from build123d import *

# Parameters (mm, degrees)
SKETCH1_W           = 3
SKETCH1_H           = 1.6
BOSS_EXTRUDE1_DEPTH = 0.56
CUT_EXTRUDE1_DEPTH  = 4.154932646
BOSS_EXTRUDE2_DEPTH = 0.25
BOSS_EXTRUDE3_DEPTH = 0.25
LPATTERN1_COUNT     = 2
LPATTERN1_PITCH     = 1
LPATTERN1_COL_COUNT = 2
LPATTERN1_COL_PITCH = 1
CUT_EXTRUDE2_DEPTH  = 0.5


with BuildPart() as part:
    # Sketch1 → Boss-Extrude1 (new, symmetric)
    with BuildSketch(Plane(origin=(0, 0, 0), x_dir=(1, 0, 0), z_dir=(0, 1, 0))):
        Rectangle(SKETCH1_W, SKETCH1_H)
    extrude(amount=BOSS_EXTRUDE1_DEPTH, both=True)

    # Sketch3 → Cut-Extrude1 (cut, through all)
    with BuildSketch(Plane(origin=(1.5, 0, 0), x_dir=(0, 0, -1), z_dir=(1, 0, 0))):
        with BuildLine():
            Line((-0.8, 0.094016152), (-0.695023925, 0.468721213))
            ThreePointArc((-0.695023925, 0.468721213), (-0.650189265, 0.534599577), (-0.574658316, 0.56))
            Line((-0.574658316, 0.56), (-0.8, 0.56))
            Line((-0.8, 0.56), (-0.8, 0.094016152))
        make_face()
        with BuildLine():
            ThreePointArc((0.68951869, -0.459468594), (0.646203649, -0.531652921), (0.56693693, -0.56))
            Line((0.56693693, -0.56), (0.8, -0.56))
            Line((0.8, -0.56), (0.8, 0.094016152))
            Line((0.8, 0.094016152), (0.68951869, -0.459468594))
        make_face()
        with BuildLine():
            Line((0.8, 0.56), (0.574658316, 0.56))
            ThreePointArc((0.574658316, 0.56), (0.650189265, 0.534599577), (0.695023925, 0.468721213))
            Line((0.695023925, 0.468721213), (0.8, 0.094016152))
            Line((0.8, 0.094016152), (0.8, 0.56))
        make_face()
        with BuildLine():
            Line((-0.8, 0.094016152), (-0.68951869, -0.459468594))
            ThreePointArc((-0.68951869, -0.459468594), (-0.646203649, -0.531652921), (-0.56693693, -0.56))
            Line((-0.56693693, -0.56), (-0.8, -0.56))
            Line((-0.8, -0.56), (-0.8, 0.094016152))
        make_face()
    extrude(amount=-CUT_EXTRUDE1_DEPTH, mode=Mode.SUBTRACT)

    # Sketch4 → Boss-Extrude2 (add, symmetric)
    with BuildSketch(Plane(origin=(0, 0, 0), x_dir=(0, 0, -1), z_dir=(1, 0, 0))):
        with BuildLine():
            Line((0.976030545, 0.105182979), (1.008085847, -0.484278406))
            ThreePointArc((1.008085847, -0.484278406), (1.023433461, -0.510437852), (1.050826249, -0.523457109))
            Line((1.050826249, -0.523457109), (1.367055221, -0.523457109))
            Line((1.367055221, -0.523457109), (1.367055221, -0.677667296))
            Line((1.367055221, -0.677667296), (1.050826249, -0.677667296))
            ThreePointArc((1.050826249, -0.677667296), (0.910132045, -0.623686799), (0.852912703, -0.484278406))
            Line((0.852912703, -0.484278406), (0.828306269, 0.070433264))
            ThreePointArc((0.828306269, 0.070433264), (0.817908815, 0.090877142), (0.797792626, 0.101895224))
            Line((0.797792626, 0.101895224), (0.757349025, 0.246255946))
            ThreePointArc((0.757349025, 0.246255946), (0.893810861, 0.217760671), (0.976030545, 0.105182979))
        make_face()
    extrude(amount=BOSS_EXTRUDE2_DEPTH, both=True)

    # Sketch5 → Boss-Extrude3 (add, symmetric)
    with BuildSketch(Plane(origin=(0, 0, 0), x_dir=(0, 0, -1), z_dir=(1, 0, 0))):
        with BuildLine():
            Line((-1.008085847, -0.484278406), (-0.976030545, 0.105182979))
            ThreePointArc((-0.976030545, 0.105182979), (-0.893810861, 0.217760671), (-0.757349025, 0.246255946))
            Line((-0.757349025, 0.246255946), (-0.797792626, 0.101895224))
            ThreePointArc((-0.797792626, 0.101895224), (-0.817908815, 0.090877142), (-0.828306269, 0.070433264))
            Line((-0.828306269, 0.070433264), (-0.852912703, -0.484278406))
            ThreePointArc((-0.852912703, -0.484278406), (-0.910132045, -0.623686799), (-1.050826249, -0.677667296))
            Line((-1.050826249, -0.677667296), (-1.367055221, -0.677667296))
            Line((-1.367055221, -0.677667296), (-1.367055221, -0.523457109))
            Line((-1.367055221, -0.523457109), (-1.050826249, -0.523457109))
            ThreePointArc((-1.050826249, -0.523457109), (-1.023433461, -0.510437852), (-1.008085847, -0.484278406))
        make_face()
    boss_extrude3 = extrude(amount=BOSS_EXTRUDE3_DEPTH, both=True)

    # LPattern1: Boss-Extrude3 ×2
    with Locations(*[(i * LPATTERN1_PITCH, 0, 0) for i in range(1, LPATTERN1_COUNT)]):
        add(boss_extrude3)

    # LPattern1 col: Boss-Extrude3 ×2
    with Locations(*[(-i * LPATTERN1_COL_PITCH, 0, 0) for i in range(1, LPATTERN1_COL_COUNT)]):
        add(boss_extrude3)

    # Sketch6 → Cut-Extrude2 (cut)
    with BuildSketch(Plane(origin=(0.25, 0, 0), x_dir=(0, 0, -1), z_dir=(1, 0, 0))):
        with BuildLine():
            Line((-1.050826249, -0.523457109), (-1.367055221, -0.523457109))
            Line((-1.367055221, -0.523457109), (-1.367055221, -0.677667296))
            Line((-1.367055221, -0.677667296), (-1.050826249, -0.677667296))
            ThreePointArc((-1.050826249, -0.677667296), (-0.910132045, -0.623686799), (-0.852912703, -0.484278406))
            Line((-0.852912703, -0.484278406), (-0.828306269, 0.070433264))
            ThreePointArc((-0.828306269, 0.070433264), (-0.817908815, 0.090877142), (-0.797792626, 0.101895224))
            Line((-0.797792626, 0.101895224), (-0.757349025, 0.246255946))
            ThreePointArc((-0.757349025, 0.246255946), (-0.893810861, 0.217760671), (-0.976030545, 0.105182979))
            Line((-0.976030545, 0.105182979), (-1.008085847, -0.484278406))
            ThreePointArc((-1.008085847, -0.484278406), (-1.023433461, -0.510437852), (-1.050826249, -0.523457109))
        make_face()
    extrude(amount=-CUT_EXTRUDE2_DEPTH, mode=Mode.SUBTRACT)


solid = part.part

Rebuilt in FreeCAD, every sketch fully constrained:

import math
import FreeCAD as App
import Part
import Sketcher

V = App.Vector
Q = App.Units.Quantity

doc = App.newDocument("Part")
body = doc.addObject("PartDesign::Body", "Body")

# Sketch on XZ plane
sketch1 = body.newObject("Sketcher::SketchObject", "Sketch")
sketch1.AttachmentSupport = (doc.getObject("XZ_Plane"), [""])
sketch1.MapMode = "FlatFace"
sketch1.addGeometry([
    Part.LineSegment(V(-1.5, -0.8, 0), V(-1.5, 0.8, 0)),
    Part.LineSegment(V(-1.5, 0.8, 0), V(1.5, 0.8, 0)),
    Part.LineSegment(V(1.5, 0.8, 0), V(1.5, -0.8, 0)),
    Part.LineSegment(V(1.5, -0.8, 0), V(-1.5, -0.8, 0)),
], False)
sketch1.addConstraint([
    Sketcher.Constraint("Coincident", 0, 2, 1, 1),
    Sketcher.Constraint("Coincident", 1, 2, 2, 1),
    Sketcher.Constraint("Coincident", 2, 2, 3, 1),
    Sketcher.Constraint("Coincident", 3, 2, 0, 1),
    Sketcher.Constraint("Vertical", 0),
    Sketcher.Constraint("Horizontal", 1),
    Sketcher.Constraint("Vertical", 2),
    Sketcher.Constraint("Horizontal", 3),
    Sketcher.Constraint("Symmetric", 0, 2, 2, 2, -1, 1),
    Sketcher.Constraint("DistanceX", 1, 1, 1, 2, Q("3 mm")),
    Sketcher.Constraint("DistanceY", 0, 1, 0, 2, Q("1.6 mm")),
])
pad1 = body.newObject("PartDesign::Pad", "Pad")
pad1.Profile = sketch1
pad1.Length = 1.12
pad1.Midplane = True

# Sketch on YZ plane
sketch2 = body.newObject("Sketcher::SketchObject", "Sketch001")
sketch2.AttachmentSupport = (doc.getObject("YZ_Plane"), [""])
sketch2.MapMode = "FlatFace"
sketch2.AttachmentOffset = App.Placement(V(0, 0, 1.5), App.Rotation())
sketch2.addGeometry([
    Part.LineSegment(V(0.09, 0.8, 0), V(0.47, 0.7, 0)),  # 0
    Part.ArcOfCircle(Part.Circle(V(0.43, 0.57, 0), V(0, 0, 1), 0.12), math.radians(0), math.radians(74)),  # 1
    Part.LineSegment(V(0.56, 0.57, 0), V(0.56, 0.8, 0)),  # 2
    Part.LineSegment(V(0.56, 0.8, 0), V(0.09, 0.8, 0)),  # 3
    Part.ArcOfCircle(Part.Circle(V(-0.43, -0.57, 0), V(0, 0, 1), 0.13), math.radians(-180), math.radians(-101)),  # 4
    Part.LineSegment(V(-0.56, -0.57, 0), V(-0.56, -0.8, 0)),  # 5
    Part.LineSegment(V(-0.56, -0.8, 0), V(0.09, -0.8, 0)),  # 6
    Part.LineSegment(V(0.09, -0.8, 0), V(-0.46, -0.69, 0)),  # 7
    Part.LineSegment(V(0.56, -0.8, 0), V(0.56, -0.57, 0)),  # 8
    Part.ArcOfCircle(Part.Circle(V(0.43, -0.57, 0), V(0, 0, 1), 0.12), math.radians(-74), math.radians(0)),  # 9
    Part.LineSegment(V(0.47, -0.7, 0), V(0.09, -0.8, 0)),  # 10
    Part.LineSegment(V(0.09, -0.8, 0), V(0.56, -0.8, 0)),  # 11
    Part.LineSegment(V(-0.46, 0.69, 0), V(0.09, 0.8, 0)),  # 12
    Part.LineSegment(V(0.09, 0.8, 0), V(-0.56, 0.8, 0)),  # 13
    Part.LineSegment(V(-0.56, 0.8, 0), V(-0.56, 0.57, 0)),  # 14
    Part.ArcOfCircle(Part.Circle(V(-0.43, 0.57, 0), V(0, 0, 1), 0.13), math.radians(101), math.radians(180)),  # 15
], False)
sketch2.addConstraint([
    Sketcher.Constraint("Tangent", 0, 2, 1, 2),
    Sketcher.Constraint("Tangent", 1, 1, 2, 1),
    Sketcher.Constraint("Coincident", 2, 2, 3, 1),
    Sketcher.Constraint("Coincident", 3, 2, 0, 1),
    Sketcher.Constraint("Tangent", 4, 1, 5, 1),
    Sketcher.Constraint("Coincident", 5, 2, 6, 1),
    Sketcher.Constraint("Coincident", 6, 2, 7, 1),
    Sketcher.Constraint("Tangent", 7, 2, 4, 2),
    Sketcher.Constraint("Tangent", 8, 2, 9, 2),
    Sketcher.Constraint("Tangent", 9, 1, 10, 1),
    Sketcher.Constraint("Coincident", 10, 2, 11, 1),
    Sketcher.Constraint("Coincident", 11, 2, 8, 1),
    Sketcher.Constraint("Coincident", 12, 2, 13, 1),
    Sketcher.Constraint("Coincident", 13, 2, 14, 1),
    Sketcher.Constraint("Tangent", 14, 2, 15, 2),
    Sketcher.Constraint("Tangent", 15, 1, 12, 1),
    Sketcher.Constraint("Vertical", 2),
    Sketcher.Constraint("Horizontal", 3),
    Sketcher.Constraint("Vertical", 5),
    Sketcher.Constraint("Horizontal", 6),
    Sketcher.Constraint("Vertical", 8),
    Sketcher.Constraint("Horizontal", 11),
    Sketcher.Constraint("Horizontal", 13),
    Sketcher.Constraint("Vertical", 14),
    Sketcher.Constraint("Coincident", 10, 2, 6, 2),
    Sketcher.Constraint("Coincident", 12, 2, 3, 2),
    Sketcher.Constraint("Equal", 1, 4),
    Sketcher.Constraint("Equal", 4, 9),
    Sketcher.Constraint("Equal", 9, 15),
    Sketcher.Constraint("Symmetric", 2, 2, 5, 2, -1, 1),
    Sketcher.Constraint("Symmetric", 1, 3, 9, 3, -1),
    Sketcher.Constraint("Symmetric", 4, 3, 15, 3, -1),
    Sketcher.Constraint("Vertical", 3, 2, 6, 2),
    Sketcher.Constraint("Radius", 1, Q("0.125 mm")),
    Sketcher.Constraint("DistanceY", -1, 1, 2, 2, Q("0.8 mm")),
    Sketcher.Constraint("DistanceX", -1, 1, 1, 1, Q("0.56 mm")),
    Sketcher.Constraint("DistanceY", 2, 1, 2, 2, Q("0.225342 mm")),
    Sketcher.Constraint("DistanceX", 3, 2, 3, 1, Q("0.465984 mm")),
    Sketcher.Constraint("DistanceY", 5, 2, 5, 1, Q("0.233063 mm")),
])
pocket1 = body.newObject("PartDesign::Pocket", "Pocket")
pocket1.Profile = sketch2
pocket1.Type = "ThroughAll"

# Sketch on YZ plane
sketch3 = body.newObject("Sketcher::SketchObject", "Sketch002")
sketch3.AttachmentSupport = (doc.getObject("YZ_Plane"), [""])
sketch3.MapMode = "FlatFace"
sketch3.addGeometry([
    Part.LineSegment(V(-0.484, -1.008, 0), V(0.105, -0.976, 0)),  # 0
    Part.ArcOfCircle(Part.Circle(V(0.055, -0.789, 0), V(0, 0, 1), 0.194), math.radians(-75), math.radians(9)),  # 1
    Part.LineSegment(V(0.246, -0.757, 0), V(0.102, -0.798, 0)),  # 2
    Part.ArcOfCircle(Part.Circle(V(0.064, -0.79, 0), V(0, 0, 1), 0.039), math.radians(-80), math.radians(-12)),  # 3
    Part.LineSegment(V(0.07, -0.828, 0), V(-0.484, -0.853, 0)),  # 4
    Part.ArcOfCircle(Part.Circle(V(-0.488, -1.043, 0), V(0, 0, 1), 0.19), math.radians(89), math.radians(182)),  # 5
    Part.LineSegment(V(-0.678, -1.051, 0), V(-0.678, -1.367, 0)),  # 6
    Part.LineSegment(V(-0.678, -1.367, 0), V(-0.523, -1.367, 0)),  # 7
    Part.LineSegment(V(-0.523, -1.367, 0), V(-0.523, -1.051, 0)),  # 8
    Part.ArcOfCircle(Part.Circle(V(-0.472, -1.058, 0), V(0, 0, 1), 0.052), math.radians(103), math.radians(172)),  # 9
], False)
sketch3.addConstraint([
    Sketcher.Constraint("Coincident", 0, 2, 1, 1),
    Sketcher.Constraint("Coincident", 1, 2, 2, 1),
    Sketcher.Constraint("Coincident", 2, 2, 3, 2),
    Sketcher.Constraint("Coincident", 3, 1, 4, 1),
    Sketcher.Constraint("Coincident", 4, 2, 5, 1),
    Sketcher.Constraint("Coincident", 5, 2, 6, 1),
    Sketcher.Constraint("Coincident", 6, 2, 7, 1),
    Sketcher.Constraint("Coincident", 7, 2, 8, 1),
    Sketcher.Constraint("Coincident", 8, 2, 9, 2),
    Sketcher.Constraint("Coincident", 9, 1, 0, 1),
    Sketcher.Constraint("Vertical", 6),
    Sketcher.Constraint("Horizontal", 7),
    Sketcher.Constraint("Vertical", 8),
    Sketcher.Constraint("Horizontal", 5, 2, 8, 2),
    Sketcher.Constraint("Vertical", 4, 2, 9, 1),
    Sketcher.Constraint("Radius", 1, Q("0.194221 mm")),
    Sketcher.Constraint("Radius", 3, Q("0.038856 mm")),
    Sketcher.Constraint("Radius", 5, Q("0.190126 mm")),
    Sketcher.Constraint("Radius", 9, Q("0.051604 mm")),
    Sketcher.Constraint("DistanceX", 7, 1, 7, 2, Q("0.15421 mm")),
    Sketcher.Constraint("DistanceY", 6, 2, 6, 1, Q("0.316229 mm")),
    Sketcher.Constraint("DistanceX", 5, 3, -1, 1, Q("0.487702 mm")),
    Sketcher.Constraint("DistanceY", 5, 2, 1, 3, Q("0.262302 mm")),
    Sketcher.Constraint("DistanceX", 5, 2, 3, 1, Q("0.748101 mm")),
    Sketcher.Constraint("Distance", 2, Q("0.149919 mm")),
    Sketcher.Constraint("DistanceY", 5, 3, -1, 1, Q("1.043008 mm")),
    Sketcher.Constraint("DistanceY", 0, 2, -1, 1, Q("0.976031 mm")),
    Sketcher.Constraint("DistanceY", 1, 2, -1, 1, Q("0.757349 mm")),
    Sketcher.Constraint("DistanceX", 4, 2, -1, 1, Q("0.484278 mm")),
    Sketcher.Constraint("DistanceY", 3, 3, 1, 3, Q("0.001492 mm")),
    Sketcher.Constraint("DistanceY", 5, 3, 3, 3, Q("0.252992 mm")),
    Sketcher.Constraint("DistanceX", 9, 3, 1, 3, Q("0.526951 mm")),
    Sketcher.Constraint("DistanceY", 9, 3, 1, 3, Q("0.269779 mm")),
    Sketcher.Constraint("DistanceX", 3, 3, 1, 2, Q("0.18243 mm")),
])
pad2 = body.newObject("PartDesign::Pad", "Pad001")
pad2.Profile = sketch3
pad2.Length = 0.5
pad2.Midplane = True

# Sketch on YZ plane
sketch4 = body.newObject("Sketcher::SketchObject", "Sketch003")
sketch4.AttachmentSupport = (doc.getObject("YZ_Plane"), [""])
sketch4.MapMode = "FlatFace"
sketch4.addGeometry([
    Part.LineSegment(V(0.105, 0.976, 0), V(-0.484, 1.008, 0)),  # 0
    Part.ArcOfCircle(Part.Circle(V(-0.472, 1.058, 0), V(0, 0, 1), 0.052), math.radians(-172), math.radians(-103)),  # 1
    Part.LineSegment(V(-0.523, 1.051, 0), V(-0.523, 1.367, 0)),  # 2
    Part.LineSegment(V(-0.523, 1.367, 0), V(-0.678, 1.367, 0)),  # 3
    Part.LineSegment(V(-0.678, 1.367, 0), V(-0.678, 1.051, 0)),  # 4
    Part.ArcOfCircle(Part.Circle(V(-0.488, 1.043, 0), V(0, 0, 1), 0.19), math.radians(178), math.radians(271)),  # 5
    Part.LineSegment(V(-0.484, 0.853, 0), V(0.07, 0.828, 0)),  # 6
    Part.ArcOfCircle(Part.Circle(V(0.064, 0.79, 0), V(0, 0, 1), 0.039), math.radians(12), math.radians(80)),  # 7
    Part.LineSegment(V(0.102, 0.798, 0), V(0.246, 0.757, 0)),  # 8
    Part.ArcOfCircle(Part.Circle(V(0.055, 0.789, 0), V(0, 0, 1), 0.194), math.radians(-9), math.radians(75)),  # 9
], False)
sketch4.addConstraint([
    Sketcher.Constraint("Coincident", 0, 2, 1, 2),
    Sketcher.Constraint("Coincident", 1, 1, 2, 1),
    Sketcher.Constraint("Coincident", 2, 2, 3, 1),
    Sketcher.Constraint("Coincident", 3, 2, 4, 1),
    Sketcher.Constraint("Coincident", 4, 2, 5, 1),
    Sketcher.Constraint("Coincident", 5, 2, 6, 1),
    Sketcher.Constraint("Coincident", 6, 2, 7, 2),
    Sketcher.Constraint("Coincident", 7, 1, 8, 1),
    Sketcher.Constraint("Coincident", 8, 2, 9, 1),
    Sketcher.Constraint("Coincident", 9, 2, 0, 1),
    Sketcher.Constraint("Vertical", 2),
    Sketcher.Constraint("Horizontal", 3),
    Sketcher.Constraint("Vertical", 4),
    Sketcher.Constraint("Horizontal", 1, 1, 4, 2),
    Sketcher.Constraint("Vertical", 0, 2, 5, 2),
    Sketcher.Constraint("Radius", 9, Q("0.194221 mm")),
    Sketcher.Constraint("Radius", 1, Q("0.051604 mm")),
    Sketcher.Constraint("Radius", 5, Q("0.190126 mm")),
    Sketcher.Constraint("Radius", 7, Q("0.038856 mm")),
    Sketcher.Constraint("DistanceX", 3, 2, 3, 1, Q("0.15421 mm")),
    Sketcher.Constraint("DistanceY", 2, 1, 2, 2, Q("0.316229 mm")),
    Sketcher.Constraint("DistanceX", 5, 3, -1, 1, Q("0.487702 mm")),
    Sketcher.Constraint("DistanceY", 9, 3, 1, 1, Q("0.262302 mm")),
    Sketcher.Constraint("Distance", 8, Q("0.149919 mm")),
    Sketcher.Constraint("DistanceY", -1, 1, 5, 3, Q("1.043008 mm")),
    Sketcher.Constraint("DistanceX", 0, 2, -1, 1, Q("0.484278 mm")),
    Sketcher.Constraint("DistanceY", -1, 1, 8, 2, Q("0.757349 mm")),
    Sketcher.Constraint("DistanceY", -1, 1, 9, 2, Q("0.976031 mm")),
    Sketcher.Constraint("DistanceY", 7, 3, 5, 3, Q("0.252992 mm")),
    Sketcher.Constraint("DistanceY", 9, 3, 7, 3, Q("0.001492 mm")),
    Sketcher.Constraint("DistanceX", 1, 3, 9, 3, Q("0.526951 mm")),
    Sketcher.Constraint("DistanceY", 9, 3, 1, 3, Q("0.269779 mm")),
    Sketcher.Constraint("DistanceY", 7, 3, 6, 2, Q("0.03829 mm")),
    Sketcher.Constraint("DistanceX", 9, 3, 6, 2, Q("0.01588 mm")),
])
pad3 = body.newObject("PartDesign::Pad", "Pad002")
pad3.Profile = sketch4
pad3.Length = 0.5
pad3.Midplane = True
doc.recompute()

linearpattern = body.newObject("PartDesign::LinearPattern", "LinearPattern")
linearpattern.Originals = [pad3]
linearpattern.Direction = (doc.getObject("X_Axis"), [""])
linearpattern.Mode = "offset"
linearpattern.Offset = 1
linearpattern.Occurrences = 2
body.Tip = linearpattern
doc.recompute()

linearpattern2 = body.newObject("PartDesign::LinearPattern", "LinearPattern001")
linearpattern2.Originals = [pad3]
linearpattern2.Direction = (doc.getObject("X_Axis"), [""])
linearpattern2.Mode = "offset"
linearpattern2.Offset = 1
linearpattern2.Occurrences = 2
linearpattern2.Reversed = True
body.Tip = linearpattern2

# Sketch on YZ plane
sketch5 = body.newObject("Sketcher::SketchObject", "Sketch004")
sketch5.AttachmentSupport = (doc.getObject("YZ_Plane"), [""])
sketch5.MapMode = "FlatFace"
sketch5.AttachmentOffset = App.Placement(V(0, 0, 0.25), App.Rotation())
sketch5.addGeometry([
    Part.LineSegment(V(-0.523, 1.051, 0), V(-0.523, 1.367, 0)),  # 0
    Part.LineSegment(V(-0.523, 1.367, 0), V(-0.678, 1.367, 0)),  # 1
    Part.LineSegment(V(-0.678, 1.367, 0), V(-0.678, 1.051, 0)),  # 2
    Part.ArcOfCircle(Part.Circle(V(-0.488, 1.043, 0), V(0, 0, 1), 0.19), math.radians(178), math.radians(271)),  # 3
    Part.LineSegment(V(-0.484, 0.853, 0), V(0.07, 0.828, 0)),  # 4
    Part.ArcOfCircle(Part.Circle(V(0.064, 0.79, 0), V(0, 0, 1), 0.039), math.radians(12), math.radians(80)),  # 5
    Part.LineSegment(V(0.102, 0.798, 0), V(0.246, 0.757, 0)),  # 6
    Part.ArcOfCircle(Part.Circle(V(0.055, 0.789, 0), V(0, 0, 1), 0.194), math.radians(-9), math.radians(75)),  # 7
    Part.LineSegment(V(0.105, 0.976, 0), V(-0.484, 1.008, 0)),  # 8
    Part.ArcOfCircle(Part.Circle(V(-0.472, 1.058, 0), V(0, 0, 1), 0.052), math.radians(-172), math.radians(-103)),  # 9
], False)
sketch5.addConstraint([
    Sketcher.Constraint("Coincident", 0, 2, 1, 1),
    Sketcher.Constraint("Coincident", 1, 2, 2, 1),
    Sketcher.Constraint("Coincident", 2, 2, 3, 1),
    Sketcher.Constraint("Coincident", 3, 2, 4, 1),
    Sketcher.Constraint("Coincident", 4, 2, 5, 2),
    Sketcher.Constraint("Coincident", 5, 1, 6, 1),
    Sketcher.Constraint("Coincident", 6, 2, 7, 1),
    Sketcher.Constraint("Coincident", 7, 2, 8, 1),
    Sketcher.Constraint("Coincident", 8, 2, 9, 2),
    Sketcher.Constraint("Coincident", 9, 1, 0, 1),
    Sketcher.Constraint("Vertical", 0),
    Sketcher.Constraint("Horizontal", 1),
    Sketcher.Constraint("Vertical", 2),
    Sketcher.Constraint("Horizontal", 2, 2, 9, 1),
    Sketcher.Constraint("Vertical", 3, 2, 8, 2),
    Sketcher.Constraint("Radius", 7, Q("0.194221 mm")),
    Sketcher.Constraint("Radius", 3, Q("0.190126 mm")),
    Sketcher.Constraint("Radius", 5, Q("0.038856 mm")),
    Sketcher.Constraint("Radius", 9, Q("0.051604 mm")),
    Sketcher.Constraint("DistanceX", 1, 2, 1, 1, Q("0.15421 mm")),
    Sketcher.Constraint("DistanceY", 0, 1, 0, 2, Q("0.316229 mm")),
    Sketcher.Constraint("DistanceX", 3, 3, -1, 1, Q("0.487702 mm")),
    Sketcher.Constraint("DistanceY", 7, 3, 2, 2, Q("0.262302 mm")),
    Sketcher.Constraint("Distance", 6, Q("0.149919 mm")),
    Sketcher.Constraint("DistanceY", -1, 1, 3, 3, Q("1.043008 mm")),
    Sketcher.Constraint("DistanceX", 3, 2, -1, 1, Q("0.484278 mm")),
    Sketcher.Constraint("DistanceY", -1, 1, 6, 2, Q("0.757349 mm")),
    Sketcher.Constraint("DistanceY", -1, 1, 7, 2, Q("0.976031 mm")),
    Sketcher.Constraint("DistanceY", 5, 3, 3, 3, Q("0.252992 mm")),
    Sketcher.Constraint("DistanceY", 7, 3, 5, 3, Q("0.001492 mm")),
    Sketcher.Constraint("DistanceX", 9, 3, 7, 3, Q("0.526951 mm")),
    Sketcher.Constraint("DistanceY", 7, 3, 9, 3, Q("0.269779 mm")),
    Sketcher.Constraint("DistanceY", 5, 3, 4, 2, Q("0.03829 mm")),
    Sketcher.Constraint("DistanceX", 7, 3, 4, 2, Q("0.01588 mm")),
])
pocket2 = body.newObject("PartDesign::Pocket", "Pocket001")
pocket2.Profile = sketch5
pocket2.Length = 0.5

doc.recompute()
